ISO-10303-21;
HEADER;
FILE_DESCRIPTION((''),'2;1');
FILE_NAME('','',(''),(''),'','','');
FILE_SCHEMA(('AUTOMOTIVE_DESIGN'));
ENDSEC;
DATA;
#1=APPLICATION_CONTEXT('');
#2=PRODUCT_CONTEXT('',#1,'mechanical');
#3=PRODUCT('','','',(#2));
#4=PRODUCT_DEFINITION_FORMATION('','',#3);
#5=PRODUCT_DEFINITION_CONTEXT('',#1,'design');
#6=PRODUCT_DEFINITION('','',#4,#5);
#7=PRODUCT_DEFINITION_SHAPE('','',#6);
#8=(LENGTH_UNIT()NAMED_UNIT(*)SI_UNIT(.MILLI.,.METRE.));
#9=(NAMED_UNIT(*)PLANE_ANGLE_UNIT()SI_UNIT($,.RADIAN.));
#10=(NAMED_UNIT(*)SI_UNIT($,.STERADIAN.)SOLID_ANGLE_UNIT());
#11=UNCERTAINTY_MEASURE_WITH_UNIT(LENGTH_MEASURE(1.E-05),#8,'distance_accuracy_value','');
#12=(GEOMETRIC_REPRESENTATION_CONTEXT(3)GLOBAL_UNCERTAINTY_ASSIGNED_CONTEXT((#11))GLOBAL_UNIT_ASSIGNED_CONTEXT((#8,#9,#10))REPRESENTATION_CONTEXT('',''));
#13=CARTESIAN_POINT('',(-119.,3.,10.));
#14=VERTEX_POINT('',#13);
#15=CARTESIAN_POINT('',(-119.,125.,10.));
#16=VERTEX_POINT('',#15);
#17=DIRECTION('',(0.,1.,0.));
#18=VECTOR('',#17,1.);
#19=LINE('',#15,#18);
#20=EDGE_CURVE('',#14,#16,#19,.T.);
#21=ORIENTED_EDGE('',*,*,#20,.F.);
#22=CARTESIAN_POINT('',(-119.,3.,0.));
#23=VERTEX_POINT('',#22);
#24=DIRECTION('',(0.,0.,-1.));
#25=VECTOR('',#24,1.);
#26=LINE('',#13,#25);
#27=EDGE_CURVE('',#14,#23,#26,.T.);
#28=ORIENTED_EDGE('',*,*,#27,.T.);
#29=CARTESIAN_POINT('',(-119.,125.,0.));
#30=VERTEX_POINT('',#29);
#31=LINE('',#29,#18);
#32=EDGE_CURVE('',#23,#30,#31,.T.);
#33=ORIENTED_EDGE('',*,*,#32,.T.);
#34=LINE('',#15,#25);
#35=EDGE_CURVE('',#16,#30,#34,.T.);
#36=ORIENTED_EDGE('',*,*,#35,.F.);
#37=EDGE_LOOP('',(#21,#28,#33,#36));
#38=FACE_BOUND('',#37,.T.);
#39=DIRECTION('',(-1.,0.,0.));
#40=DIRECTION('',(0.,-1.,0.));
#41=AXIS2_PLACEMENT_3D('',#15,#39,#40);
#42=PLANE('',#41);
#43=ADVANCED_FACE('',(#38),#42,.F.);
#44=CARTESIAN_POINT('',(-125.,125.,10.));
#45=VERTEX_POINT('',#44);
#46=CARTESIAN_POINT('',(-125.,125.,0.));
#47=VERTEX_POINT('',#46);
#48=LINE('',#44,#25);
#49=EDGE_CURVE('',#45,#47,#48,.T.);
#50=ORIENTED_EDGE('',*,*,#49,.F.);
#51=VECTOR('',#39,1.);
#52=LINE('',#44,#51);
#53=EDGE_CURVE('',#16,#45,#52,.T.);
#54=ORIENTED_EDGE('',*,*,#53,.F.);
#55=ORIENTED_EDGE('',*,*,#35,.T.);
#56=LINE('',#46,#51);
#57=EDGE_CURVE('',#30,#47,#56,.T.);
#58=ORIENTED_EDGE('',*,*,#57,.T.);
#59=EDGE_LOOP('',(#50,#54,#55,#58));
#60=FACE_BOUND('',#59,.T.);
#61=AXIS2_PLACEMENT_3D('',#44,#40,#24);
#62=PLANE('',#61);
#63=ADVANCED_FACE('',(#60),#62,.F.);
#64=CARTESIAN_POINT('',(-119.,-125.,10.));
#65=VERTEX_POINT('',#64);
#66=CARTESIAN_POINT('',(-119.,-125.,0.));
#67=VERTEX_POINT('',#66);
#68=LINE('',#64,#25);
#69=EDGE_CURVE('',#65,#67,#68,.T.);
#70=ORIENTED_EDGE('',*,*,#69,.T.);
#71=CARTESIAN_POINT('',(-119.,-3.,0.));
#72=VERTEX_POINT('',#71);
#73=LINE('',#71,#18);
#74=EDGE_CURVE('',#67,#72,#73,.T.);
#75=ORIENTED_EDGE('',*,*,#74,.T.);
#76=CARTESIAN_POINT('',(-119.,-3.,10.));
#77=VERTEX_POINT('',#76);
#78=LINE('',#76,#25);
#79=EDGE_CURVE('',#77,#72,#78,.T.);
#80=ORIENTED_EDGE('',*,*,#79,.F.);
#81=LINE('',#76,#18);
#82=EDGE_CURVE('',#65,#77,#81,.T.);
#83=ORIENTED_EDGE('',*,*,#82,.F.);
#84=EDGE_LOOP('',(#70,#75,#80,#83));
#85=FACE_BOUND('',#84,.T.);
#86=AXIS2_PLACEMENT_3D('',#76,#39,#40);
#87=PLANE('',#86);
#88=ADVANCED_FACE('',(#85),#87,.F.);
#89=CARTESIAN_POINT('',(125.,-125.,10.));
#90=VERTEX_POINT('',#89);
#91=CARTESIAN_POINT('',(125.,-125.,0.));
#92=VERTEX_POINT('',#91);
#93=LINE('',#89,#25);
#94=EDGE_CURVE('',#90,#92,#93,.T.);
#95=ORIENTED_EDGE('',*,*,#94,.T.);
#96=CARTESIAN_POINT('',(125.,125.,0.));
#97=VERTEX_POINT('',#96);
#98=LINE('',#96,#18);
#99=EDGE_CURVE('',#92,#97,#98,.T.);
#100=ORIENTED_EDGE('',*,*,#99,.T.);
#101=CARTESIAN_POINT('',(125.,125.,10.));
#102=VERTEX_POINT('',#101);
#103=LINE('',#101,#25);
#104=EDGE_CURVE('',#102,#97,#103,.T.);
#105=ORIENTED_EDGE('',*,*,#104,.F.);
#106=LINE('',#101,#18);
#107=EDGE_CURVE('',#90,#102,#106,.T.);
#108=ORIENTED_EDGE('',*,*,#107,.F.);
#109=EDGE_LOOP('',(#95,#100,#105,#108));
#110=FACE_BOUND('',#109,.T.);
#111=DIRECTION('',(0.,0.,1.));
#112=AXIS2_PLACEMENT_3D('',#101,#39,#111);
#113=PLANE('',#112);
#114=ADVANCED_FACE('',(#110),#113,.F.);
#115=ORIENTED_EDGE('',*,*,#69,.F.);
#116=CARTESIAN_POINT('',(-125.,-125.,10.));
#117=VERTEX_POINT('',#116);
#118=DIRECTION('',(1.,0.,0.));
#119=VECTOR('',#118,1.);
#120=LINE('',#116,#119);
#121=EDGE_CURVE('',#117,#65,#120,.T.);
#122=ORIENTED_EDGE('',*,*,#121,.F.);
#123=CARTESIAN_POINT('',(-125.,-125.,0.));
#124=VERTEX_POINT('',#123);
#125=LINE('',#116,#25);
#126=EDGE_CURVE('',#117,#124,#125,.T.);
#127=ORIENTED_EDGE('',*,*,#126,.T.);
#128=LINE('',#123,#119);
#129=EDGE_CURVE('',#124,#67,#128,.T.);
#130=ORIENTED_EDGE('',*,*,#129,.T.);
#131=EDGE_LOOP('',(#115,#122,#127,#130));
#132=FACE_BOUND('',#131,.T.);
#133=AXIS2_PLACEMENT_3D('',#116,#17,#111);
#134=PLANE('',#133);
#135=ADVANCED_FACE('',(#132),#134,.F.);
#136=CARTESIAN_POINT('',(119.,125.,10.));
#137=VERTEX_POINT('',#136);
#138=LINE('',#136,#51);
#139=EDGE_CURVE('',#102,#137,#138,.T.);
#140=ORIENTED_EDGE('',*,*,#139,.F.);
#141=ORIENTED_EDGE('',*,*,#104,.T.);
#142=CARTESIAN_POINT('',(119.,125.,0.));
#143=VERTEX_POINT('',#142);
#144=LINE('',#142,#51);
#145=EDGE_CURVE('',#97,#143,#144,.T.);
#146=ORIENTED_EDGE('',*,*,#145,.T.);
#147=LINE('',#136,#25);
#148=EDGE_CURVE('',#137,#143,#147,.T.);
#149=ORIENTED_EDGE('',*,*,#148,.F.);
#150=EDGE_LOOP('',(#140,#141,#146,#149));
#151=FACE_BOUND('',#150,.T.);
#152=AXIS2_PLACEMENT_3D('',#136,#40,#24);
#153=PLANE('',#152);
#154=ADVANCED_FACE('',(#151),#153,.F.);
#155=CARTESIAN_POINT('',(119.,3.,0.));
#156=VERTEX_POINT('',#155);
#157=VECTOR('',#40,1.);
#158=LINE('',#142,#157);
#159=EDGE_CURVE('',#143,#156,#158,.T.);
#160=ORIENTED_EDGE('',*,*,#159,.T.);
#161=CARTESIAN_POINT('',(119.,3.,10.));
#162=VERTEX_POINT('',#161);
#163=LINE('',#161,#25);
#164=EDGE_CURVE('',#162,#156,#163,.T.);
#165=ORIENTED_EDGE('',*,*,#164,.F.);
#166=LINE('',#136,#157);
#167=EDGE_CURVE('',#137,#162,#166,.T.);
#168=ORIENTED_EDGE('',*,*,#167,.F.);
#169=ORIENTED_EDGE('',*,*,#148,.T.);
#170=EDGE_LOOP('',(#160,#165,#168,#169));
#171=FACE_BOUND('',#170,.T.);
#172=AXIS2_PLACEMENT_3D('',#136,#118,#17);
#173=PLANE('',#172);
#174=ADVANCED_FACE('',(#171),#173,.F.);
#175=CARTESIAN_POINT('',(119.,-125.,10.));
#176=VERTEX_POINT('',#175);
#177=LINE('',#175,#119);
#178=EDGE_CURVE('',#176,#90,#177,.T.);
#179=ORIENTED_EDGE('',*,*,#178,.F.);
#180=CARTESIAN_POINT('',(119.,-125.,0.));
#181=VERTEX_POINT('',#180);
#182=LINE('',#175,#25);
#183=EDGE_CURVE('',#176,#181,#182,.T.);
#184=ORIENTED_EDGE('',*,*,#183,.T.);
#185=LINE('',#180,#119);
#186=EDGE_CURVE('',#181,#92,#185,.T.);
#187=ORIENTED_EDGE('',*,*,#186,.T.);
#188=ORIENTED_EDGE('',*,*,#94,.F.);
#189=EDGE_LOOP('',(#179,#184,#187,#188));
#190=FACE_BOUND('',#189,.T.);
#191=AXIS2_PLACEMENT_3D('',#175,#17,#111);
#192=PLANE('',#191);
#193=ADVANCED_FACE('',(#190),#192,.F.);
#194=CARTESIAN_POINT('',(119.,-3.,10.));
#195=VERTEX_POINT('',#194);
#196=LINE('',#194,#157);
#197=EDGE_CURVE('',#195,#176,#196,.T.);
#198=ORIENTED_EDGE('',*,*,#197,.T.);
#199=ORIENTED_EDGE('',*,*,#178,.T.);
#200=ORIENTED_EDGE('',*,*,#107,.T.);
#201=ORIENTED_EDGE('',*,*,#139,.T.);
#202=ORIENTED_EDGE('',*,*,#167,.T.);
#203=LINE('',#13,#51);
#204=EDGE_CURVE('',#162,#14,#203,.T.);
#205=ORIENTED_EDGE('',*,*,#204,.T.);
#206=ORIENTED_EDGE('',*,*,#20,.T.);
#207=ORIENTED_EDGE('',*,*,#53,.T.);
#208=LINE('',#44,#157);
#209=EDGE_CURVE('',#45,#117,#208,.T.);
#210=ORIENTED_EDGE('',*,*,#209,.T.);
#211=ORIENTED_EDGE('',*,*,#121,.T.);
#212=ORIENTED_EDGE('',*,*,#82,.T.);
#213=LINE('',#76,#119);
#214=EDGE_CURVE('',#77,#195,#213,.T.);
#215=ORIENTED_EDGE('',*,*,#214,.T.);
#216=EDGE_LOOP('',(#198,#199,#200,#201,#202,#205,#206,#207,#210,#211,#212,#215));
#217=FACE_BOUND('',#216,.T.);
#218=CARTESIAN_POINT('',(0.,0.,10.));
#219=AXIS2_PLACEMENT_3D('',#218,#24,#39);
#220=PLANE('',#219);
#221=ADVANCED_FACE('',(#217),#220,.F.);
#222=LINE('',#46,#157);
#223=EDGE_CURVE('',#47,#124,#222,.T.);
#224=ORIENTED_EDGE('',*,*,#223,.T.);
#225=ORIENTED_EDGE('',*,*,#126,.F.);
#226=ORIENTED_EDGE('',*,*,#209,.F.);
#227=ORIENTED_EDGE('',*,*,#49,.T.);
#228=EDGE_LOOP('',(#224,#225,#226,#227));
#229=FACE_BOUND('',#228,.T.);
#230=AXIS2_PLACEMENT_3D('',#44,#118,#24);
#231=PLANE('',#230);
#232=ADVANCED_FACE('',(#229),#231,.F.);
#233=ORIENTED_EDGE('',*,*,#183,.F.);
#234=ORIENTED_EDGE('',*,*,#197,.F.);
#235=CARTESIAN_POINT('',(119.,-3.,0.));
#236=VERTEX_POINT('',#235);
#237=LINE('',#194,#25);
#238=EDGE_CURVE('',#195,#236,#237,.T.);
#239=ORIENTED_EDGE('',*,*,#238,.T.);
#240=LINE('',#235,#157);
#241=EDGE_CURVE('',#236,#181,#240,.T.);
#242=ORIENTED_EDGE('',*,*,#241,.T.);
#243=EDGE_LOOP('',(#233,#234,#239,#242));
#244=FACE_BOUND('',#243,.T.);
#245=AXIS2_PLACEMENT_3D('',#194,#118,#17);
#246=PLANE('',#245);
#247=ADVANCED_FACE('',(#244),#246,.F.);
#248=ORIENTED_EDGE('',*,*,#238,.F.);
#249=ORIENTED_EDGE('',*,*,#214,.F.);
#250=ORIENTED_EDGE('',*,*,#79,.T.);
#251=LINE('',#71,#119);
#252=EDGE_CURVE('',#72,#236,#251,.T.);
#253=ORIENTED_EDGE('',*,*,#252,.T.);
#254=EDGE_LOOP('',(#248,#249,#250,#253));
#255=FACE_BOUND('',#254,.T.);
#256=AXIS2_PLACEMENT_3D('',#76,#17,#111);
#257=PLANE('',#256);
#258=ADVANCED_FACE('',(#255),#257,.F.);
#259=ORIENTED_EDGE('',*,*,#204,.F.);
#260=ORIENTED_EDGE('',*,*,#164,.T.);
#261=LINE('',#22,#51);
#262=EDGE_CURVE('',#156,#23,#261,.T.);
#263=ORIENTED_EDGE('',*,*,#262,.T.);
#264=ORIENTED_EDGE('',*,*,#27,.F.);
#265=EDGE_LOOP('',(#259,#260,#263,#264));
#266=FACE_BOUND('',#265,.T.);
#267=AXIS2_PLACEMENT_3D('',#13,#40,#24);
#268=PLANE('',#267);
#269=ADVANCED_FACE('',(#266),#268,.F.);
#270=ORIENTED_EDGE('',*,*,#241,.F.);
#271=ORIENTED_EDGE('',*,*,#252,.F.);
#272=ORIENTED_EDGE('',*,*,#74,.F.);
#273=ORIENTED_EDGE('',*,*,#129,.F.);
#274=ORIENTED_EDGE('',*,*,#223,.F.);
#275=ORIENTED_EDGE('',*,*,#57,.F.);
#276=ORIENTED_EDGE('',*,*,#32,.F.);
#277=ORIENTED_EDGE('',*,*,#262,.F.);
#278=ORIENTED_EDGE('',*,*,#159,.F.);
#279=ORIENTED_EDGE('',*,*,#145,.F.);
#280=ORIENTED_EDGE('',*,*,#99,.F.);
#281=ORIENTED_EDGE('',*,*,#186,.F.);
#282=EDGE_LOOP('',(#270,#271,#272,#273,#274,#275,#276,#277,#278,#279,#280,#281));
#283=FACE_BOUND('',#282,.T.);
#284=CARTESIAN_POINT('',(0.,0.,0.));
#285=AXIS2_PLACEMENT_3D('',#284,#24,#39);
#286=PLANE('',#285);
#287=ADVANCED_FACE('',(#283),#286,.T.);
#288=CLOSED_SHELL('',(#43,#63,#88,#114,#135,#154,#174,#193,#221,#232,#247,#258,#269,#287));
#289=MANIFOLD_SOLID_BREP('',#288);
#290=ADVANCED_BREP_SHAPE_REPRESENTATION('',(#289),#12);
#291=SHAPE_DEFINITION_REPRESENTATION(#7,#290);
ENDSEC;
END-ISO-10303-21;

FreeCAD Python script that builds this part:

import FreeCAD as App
import Part
import Sketcher

V = App.Vector


def add_polygon(sketch, points):
    """Adds a closed chain of lines whose ends are joined by coincident constraints."""
    first, n = sketch.GeometryCount, len(points)
    for a, b in zip(points, points[1:] + points[:1]):
        sketch.addGeometry(Part.LineSegment(App.Vector(*a, 0), App.Vector(*b, 0)), False)
    for i in range(n):
        sketch.addConstraint(Sketcher.Constraint("Coincident", first + i, 2, first + (i + 1) % n, 1))

doc = App.newDocument("Part")
body = doc.addObject("PartDesign::Body", "Body")

# Sketch on XY plane
sketch1 = body.newObject("Sketcher::SketchObject", "Sketch")
sketch1.AttachmentSupport = (doc.getObject("XY_Plane"), [""])
sketch1.MapMode = "FlatFace"
add_polygon(sketch1, [(-125, 125), (-125, -125), (-119, -125), (-119, -3), (119, -3), (119, -125), (125, -125), (125, 125), (119, 125), (119, 3), (-119, 3), (-119, 125)])  # lines 0-11
sketch1.addConstraint(Sketcher.Constraint("Vertical", 0))
sketch1.addConstraint(Sketcher.Constraint("Horizontal", 1))
sketch1.addConstraint(Sketcher.Constraint("Vertical", 2))
sketch1.addConstraint(Sketcher.Constraint("Horizontal", 3))
sketch1.addConstraint(Sketcher.Constraint("Vertical", 4))
sketch1.addConstraint(Sketcher.Constraint("Horizontal", 5))
sketch1.addConstraint(Sketcher.Constraint("Vertical", 6))
sketch1.addConstraint(Sketcher.Constraint("Horizontal", 7))
sketch1.addConstraint(Sketcher.Constraint("Vertical", 8))
sketch1.addConstraint(Sketcher.Constraint("Horizontal", 9))
sketch1.addConstraint(Sketcher.Constraint("Vertical", 10))
sketch1.addConstraint(Sketcher.Constraint("Horizontal", 11))
sketch1.addConstraint(Sketcher.Constraint("Symmetric", 0, 2, 6, 2, -1, 1))
sketch1.addConstraint(Sketcher.Constraint("Symmetric", 2, 2, 8, 2, -1, 1))
sketch1.addConstraint(Sketcher.Constraint("Symmetric", 4, 2, 10, 2, -1, 1))
sketch1.addConstraint(Sketcher.Constraint("Symmetric", 1, 2, 4, 2, -2))
sketch1.addConstraint(Sketcher.Constraint("DistanceX", 1, 1, 1, 2, 6.0))
sketch1.addConstraint(Sketcher.Constraint("DistanceX", 3, 1, 3, 2, 238.0))
sketch1.addConstraint(Sketcher.Constraint("DistanceY", 0, 2, 0, 1, 250.0))
sketch1.addConstraint(Sketcher.Constraint("DistanceY", 2, 1, 2, 2, 122.0))
pad1 = body.newObject("PartDesign::Pad", "Pad")
pad1.Profile = sketch1
pad1.Length = 10

doc.recompute()
